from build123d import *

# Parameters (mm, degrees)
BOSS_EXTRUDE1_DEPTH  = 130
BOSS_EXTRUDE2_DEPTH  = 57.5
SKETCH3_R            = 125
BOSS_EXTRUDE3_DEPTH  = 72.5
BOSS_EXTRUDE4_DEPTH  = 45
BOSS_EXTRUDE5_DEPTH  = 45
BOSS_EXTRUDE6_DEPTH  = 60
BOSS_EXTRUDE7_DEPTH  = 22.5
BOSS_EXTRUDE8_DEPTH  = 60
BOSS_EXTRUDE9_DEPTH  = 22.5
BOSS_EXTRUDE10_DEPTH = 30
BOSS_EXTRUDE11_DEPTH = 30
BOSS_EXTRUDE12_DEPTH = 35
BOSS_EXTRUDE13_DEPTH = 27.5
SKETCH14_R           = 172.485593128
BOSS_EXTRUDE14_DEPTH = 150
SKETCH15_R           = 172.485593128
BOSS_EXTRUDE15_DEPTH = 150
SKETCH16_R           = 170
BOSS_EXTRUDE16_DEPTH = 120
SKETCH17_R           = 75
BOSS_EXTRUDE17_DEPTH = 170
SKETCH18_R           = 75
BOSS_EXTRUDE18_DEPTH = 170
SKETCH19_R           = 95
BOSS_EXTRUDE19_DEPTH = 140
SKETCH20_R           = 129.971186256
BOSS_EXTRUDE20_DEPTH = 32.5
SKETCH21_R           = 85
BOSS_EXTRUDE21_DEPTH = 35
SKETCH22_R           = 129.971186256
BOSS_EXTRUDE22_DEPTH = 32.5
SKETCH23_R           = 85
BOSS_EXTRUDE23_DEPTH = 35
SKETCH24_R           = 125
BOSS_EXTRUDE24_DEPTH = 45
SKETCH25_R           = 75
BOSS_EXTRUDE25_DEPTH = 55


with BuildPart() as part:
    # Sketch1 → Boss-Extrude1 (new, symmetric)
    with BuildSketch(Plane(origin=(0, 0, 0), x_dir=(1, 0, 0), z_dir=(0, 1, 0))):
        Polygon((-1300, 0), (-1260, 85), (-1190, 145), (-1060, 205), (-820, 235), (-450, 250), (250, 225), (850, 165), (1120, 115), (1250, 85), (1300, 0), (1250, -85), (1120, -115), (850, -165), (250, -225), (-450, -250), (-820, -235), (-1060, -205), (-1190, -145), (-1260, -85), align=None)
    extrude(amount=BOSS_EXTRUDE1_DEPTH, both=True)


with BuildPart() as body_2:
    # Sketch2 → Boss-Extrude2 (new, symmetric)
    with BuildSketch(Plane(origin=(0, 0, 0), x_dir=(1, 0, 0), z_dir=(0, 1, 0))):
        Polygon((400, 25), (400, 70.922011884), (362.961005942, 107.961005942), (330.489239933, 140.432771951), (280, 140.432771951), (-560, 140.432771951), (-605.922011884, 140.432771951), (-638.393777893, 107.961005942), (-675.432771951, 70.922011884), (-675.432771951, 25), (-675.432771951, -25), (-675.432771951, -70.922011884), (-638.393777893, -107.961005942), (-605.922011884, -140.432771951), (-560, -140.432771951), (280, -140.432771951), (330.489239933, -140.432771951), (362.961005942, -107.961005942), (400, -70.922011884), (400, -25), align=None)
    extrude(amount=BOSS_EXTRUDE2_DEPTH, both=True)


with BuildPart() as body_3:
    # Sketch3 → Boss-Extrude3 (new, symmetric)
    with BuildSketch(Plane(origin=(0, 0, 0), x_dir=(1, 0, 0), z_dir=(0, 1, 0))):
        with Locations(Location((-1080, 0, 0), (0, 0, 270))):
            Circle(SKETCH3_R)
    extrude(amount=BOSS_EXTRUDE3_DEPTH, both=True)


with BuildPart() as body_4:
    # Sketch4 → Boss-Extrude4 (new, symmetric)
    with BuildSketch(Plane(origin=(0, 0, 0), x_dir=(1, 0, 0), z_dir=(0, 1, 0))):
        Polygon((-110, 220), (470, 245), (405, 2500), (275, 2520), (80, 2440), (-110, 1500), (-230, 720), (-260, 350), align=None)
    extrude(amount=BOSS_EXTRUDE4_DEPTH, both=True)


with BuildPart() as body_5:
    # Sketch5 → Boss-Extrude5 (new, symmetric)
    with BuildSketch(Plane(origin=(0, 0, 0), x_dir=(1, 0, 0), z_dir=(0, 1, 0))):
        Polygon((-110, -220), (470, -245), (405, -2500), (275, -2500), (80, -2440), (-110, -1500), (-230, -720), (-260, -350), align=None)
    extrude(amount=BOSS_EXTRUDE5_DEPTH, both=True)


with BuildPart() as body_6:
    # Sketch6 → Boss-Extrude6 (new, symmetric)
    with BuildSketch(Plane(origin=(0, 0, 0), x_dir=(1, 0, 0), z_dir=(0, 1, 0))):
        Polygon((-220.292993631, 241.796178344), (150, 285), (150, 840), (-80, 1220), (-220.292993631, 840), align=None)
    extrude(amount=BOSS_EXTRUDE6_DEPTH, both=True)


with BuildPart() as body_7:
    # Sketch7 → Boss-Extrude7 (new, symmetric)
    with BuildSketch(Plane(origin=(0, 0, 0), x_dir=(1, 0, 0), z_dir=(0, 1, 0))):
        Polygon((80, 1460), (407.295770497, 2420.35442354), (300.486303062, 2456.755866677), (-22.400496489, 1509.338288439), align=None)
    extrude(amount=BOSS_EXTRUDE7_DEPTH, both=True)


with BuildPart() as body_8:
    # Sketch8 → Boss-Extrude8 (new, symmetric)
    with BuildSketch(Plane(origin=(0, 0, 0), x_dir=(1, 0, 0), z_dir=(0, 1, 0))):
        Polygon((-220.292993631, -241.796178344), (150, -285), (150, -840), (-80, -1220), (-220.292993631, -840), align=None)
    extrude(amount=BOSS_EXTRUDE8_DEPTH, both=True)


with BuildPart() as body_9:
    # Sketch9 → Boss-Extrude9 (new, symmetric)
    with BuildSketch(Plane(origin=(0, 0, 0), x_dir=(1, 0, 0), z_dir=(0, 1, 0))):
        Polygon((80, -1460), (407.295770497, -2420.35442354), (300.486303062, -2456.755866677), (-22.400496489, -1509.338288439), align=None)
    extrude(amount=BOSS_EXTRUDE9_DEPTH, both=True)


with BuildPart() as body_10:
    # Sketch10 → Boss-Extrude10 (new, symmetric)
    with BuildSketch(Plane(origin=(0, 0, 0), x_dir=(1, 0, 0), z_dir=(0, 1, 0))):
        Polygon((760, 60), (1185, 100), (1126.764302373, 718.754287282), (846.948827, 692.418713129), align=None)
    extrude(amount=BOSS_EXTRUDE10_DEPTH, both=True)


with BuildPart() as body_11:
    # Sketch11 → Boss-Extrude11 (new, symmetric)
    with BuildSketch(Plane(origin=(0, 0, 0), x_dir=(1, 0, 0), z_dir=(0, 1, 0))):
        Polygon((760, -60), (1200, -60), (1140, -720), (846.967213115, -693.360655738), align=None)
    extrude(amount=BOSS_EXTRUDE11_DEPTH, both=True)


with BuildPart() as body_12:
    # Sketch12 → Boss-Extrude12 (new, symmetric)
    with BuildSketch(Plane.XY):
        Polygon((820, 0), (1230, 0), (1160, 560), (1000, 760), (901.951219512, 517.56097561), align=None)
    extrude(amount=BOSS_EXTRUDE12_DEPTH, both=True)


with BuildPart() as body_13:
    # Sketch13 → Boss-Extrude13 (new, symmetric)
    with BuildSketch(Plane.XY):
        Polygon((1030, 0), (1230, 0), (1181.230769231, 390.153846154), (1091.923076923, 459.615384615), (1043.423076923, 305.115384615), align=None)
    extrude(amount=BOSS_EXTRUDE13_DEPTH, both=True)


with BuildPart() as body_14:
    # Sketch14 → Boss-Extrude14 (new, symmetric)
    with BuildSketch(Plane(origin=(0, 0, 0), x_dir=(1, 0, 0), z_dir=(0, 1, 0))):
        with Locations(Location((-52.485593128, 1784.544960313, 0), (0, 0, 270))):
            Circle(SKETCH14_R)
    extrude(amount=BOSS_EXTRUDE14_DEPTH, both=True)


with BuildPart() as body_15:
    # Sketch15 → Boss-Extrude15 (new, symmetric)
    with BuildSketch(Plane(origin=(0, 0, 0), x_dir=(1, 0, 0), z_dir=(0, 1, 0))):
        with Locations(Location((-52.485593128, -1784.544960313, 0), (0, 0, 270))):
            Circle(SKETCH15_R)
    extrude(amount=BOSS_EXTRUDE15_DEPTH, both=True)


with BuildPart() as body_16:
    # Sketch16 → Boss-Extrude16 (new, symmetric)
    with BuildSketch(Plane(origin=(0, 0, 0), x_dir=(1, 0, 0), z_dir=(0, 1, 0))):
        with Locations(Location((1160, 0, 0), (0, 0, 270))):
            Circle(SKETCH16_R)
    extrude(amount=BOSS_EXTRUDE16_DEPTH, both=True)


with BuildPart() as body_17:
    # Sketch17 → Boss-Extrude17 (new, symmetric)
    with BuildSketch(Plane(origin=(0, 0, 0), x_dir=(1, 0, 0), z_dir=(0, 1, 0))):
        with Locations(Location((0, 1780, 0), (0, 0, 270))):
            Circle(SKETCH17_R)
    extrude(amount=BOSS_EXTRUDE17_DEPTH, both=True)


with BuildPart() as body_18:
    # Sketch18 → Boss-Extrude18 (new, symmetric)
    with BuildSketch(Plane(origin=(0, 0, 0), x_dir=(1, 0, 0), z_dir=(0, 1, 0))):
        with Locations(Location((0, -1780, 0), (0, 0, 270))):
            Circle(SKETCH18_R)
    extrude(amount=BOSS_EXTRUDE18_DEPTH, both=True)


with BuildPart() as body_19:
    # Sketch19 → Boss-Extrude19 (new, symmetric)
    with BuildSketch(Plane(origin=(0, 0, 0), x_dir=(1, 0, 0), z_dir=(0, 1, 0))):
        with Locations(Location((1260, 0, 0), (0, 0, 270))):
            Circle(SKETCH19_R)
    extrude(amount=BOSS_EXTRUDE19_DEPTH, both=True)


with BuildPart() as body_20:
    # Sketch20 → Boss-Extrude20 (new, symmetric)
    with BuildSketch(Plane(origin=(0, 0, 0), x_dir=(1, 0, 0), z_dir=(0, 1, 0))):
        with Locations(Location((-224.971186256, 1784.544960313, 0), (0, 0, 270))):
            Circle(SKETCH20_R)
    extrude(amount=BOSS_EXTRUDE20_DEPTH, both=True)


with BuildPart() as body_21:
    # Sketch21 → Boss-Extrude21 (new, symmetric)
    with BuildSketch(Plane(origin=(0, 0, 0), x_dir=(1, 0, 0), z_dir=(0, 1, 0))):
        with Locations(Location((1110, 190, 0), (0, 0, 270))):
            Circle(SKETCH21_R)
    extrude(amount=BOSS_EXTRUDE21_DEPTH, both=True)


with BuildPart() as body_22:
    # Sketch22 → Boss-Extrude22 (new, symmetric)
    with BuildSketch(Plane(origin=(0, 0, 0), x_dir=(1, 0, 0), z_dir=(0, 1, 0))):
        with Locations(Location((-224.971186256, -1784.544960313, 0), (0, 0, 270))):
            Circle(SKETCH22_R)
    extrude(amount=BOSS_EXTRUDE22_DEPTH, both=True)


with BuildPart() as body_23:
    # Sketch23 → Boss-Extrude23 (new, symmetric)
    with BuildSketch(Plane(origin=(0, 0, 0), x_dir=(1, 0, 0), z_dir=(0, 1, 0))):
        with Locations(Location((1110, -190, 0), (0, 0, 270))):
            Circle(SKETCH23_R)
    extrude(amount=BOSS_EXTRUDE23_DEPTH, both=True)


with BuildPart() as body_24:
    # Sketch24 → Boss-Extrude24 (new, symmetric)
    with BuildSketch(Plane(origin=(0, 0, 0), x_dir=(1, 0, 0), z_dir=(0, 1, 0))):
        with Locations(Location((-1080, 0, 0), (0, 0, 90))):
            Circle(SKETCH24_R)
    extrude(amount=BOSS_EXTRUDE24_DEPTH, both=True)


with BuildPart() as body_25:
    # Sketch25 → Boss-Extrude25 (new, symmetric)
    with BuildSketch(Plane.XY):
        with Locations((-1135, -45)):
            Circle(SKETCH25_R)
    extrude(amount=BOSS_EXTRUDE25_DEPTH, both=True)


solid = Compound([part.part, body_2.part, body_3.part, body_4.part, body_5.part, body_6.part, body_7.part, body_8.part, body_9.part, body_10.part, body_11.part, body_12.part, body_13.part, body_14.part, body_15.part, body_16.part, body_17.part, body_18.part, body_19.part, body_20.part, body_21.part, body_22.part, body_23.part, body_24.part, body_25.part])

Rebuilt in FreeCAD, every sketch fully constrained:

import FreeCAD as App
import Part
import Sketcher
from FreeCAD import Vector
Q = App.Units.Quantity

doc = App.newDocument("Part")
body = doc.addObject("PartDesign::Body", "Body")

sketch1 = doc.addObject("Sketcher::SketchObject", "Sketch")
body.addObject(sketch1)
sketch1.AttachmentSupport = (doc.XZ_Plane, [""])
sketch1.MapMode = "FlatFace"
sketch1.addGeometry(Part.LineSegment(Vector(-1260, -85, 0), Vector(-1300, 0, 0)), False)
sketch1.addGeometry(Part.LineSegment(Vector(-1300, 0, 0), Vector(-1260, 85, 0)), False)
sketch1.addGeometry(Part.LineSegment(Vector(-1260, 85, 0), Vector(-1190, 145, 0)), False)
sketch1.addGeometry(Part.LineSegment(Vector(-1190, 145, 0), Vector(-1060, 205, 0)), False)
sketch1.addGeometry(Part.LineSegment(Vector(-1060, 205, 0), Vector(-820, 235, 0)), False)
sketch1.addGeometry(Part.LineSegment(Vector(-820, 235, 0), Vector(-450, 250, 0)), False)
sketch1.addGeometry(Part.LineSegment(Vector(-450, 250, 0), Vector(250, 225, 0)), False)
sketch1.addGeometry(Part.LineSegment(Vector(250, 225, 0), Vector(850, 165, 0)), False)
sketch1.addGeometry(Part.LineSegment(Vector(850, 165, 0), Vector(1120, 115, 0)), False)
sketch1.addGeometry(Part.LineSegment(Vector(1120, 115, 0), Vector(1250, 85, 0)), False)
sketch1.addGeometry(Part.LineSegment(Vector(1250, 85, 0), Vector(1300, 0, 0)), False)
sketch1.addGeometry(Part.LineSegment(Vector(1300, 0, 0), Vector(1250, -85, 0)), False)
sketch1.addGeometry(Part.LineSegment(Vector(1250, -85, 0), Vector(1120, -115, 0)), False)
sketch1.addGeometry(Part.LineSegment(Vector(1120, -115, 0), Vector(850, -165, 0)), False)
sketch1.addGeometry(Part.LineSegment(Vector(850, -165, 0), Vector(250, -225, 0)), False)
sketch1.addGeometry(Part.LineSegment(Vector(250, -225, 0), Vector(-450, -250, 0)), False)
sketch1.addGeometry(Part.LineSegment(Vector(-450, -250, 0), Vector(-820, -235, 0)), False)
sketch1.addGeometry(Part.LineSegment(Vector(-820, -235, 0), Vector(-1060, -205, 0)), False)
sketch1.addGeometry(Part.LineSegment(Vector(-1060, -205, 0), Vector(-1190, -145, 0)), False)
sketch1.addGeometry(Part.LineSegment(Vector(-1190, -145, 0), Vector(-1260, -85, 0)), False)
sketch1.addConstraint(Sketcher.Constraint("Coincident", 0, 2, 1, 1))
sketch1.addConstraint(Sketcher.Constraint("Coincident", 1, 2, 2, 1))
sketch1.addConstraint(Sketcher.Constraint("Coincident", 2, 2, 3, 1))
sketch1.addConstraint(Sketcher.Constraint("Coincident", 3, 2, 4, 1))
sketch1.addConstraint(Sketcher.Constraint("Coincident", 4, 2, 5, 1))
sketch1.addConstraint(Sketcher.Constraint("Coincident", 5, 2, 6, 1))
sketch1.addConstraint(Sketcher.Constraint("Coincident", 6, 2, 7, 1))
sketch1.addConstraint(Sketcher.Constraint("Coincident", 7, 2, 8, 1))
sketch1.addConstraint(Sketcher.Constraint("Coincident", 8, 2, 9, 1))
sketch1.addConstraint(Sketcher.Constraint("Coincident", 9, 2, 10, 1))
sketch1.addConstraint(Sketcher.Constraint("Coincident", 10, 2, 11, 1))
sketch1.addConstraint(Sketcher.Constraint("Coincident", 11, 2, 12, 1))
sketch1.addConstraint(Sketcher.Constraint("Coincident", 12, 2, 13, 1))
sketch1.addConstraint(Sketcher.Constraint("Coincident", 13, 2, 14, 1))
sketch1.addConstraint(Sketcher.Constraint("Coincident", 14, 2, 15, 1))
sketch1.addConstraint(Sketcher.Constraint("Coincident", 15, 2, 16, 1))
sketch1.addConstraint(Sketcher.Constraint("Coincident", 16, 2, 17, 1))
sketch1.addConstraint(Sketcher.Constraint("Coincident", 17, 2, 18, 1))
sketch1.addConstraint(Sketcher.Constraint("Coincident", 18, 2, 19, 1))
sketch1.addConstraint(Sketcher.Constraint("Coincident", 19, 2, 0, 1))
sketch1.addConstraint(Sketcher.Constraint("Symmetric", 0, 2, 10, 2, -1, 1))
sketch1.addConstraint(Sketcher.Constraint("Symmetric", 9, 2, 11, 2, -1))
sketch1.addConstraint(Sketcher.Constraint("Symmetric", 8, 2, 12, 2, -1))
sketch1.addConstraint(Sketcher.Constraint("Symmetric", 7, 2, 13, 2, -1))
sketch1.addConstraint(Sketcher.Constraint("Symmetric", 6, 2, 14, 2, -1))
sketch1.addConstraint(Sketcher.Constraint("Symmetric", 5, 2, 15, 2, -1))
sketch1.addConstraint(Sketcher.Constraint("Symmetric", 4, 2, 16, 2, -1))
sketch1.addConstraint(Sketcher.Constraint("Symmetric", 3, 2, 17, 2, -1))
sketch1.addConstraint(Sketcher.Constraint("Symmetric", 2, 2, 18, 2, -1))
sketch1.addConstraint(Sketcher.Constraint("Symmetric", 1, 2, 19, 2, -1))
sketch1.addConstraint(Sketcher.Constraint("PointOnObject", 0, 2, -1))
sketch1.addConstraint(Sketcher.Constraint("Horizontal", 1, 2, 9, 2))
sketch1.addConstraint(Sketcher.Constraint("DistanceX", 0, 2, -1, 1, Q("1300 mm")))
sketch1.addConstraint(Sketcher.Constraint("DistanceX", 1, 2, -1, 1, Q("1260 mm")))
sketch1.addConstraint(Sketcher.Constraint("DistanceY", -1, 1, 1, 2, Q("85 mm")))
sketch1.addConstraint(Sketcher.Constraint("DistanceX", 2, 2, -1, 1, Q("1190 mm")))
sketch1.addConstraint(Sketcher.Constraint("DistanceY", -1, 1, 2, 2, Q("145 mm")))
sketch1.addConstraint(Sketcher.Constraint("DistanceX", 3, 2, -1, 1, Q("1060 mm")))
sketch1.addConstraint(Sketcher.Constraint("DistanceY", -1, 1, 3, 2, Q("205 mm")))
sketch1.addConstraint(Sketcher.Constraint("DistanceX", 4, 2, -1, 1, Q("820 mm")))
sketch1.addConstraint(Sketcher.Constraint("DistanceY", -1, 1, 4, 2, Q("235 mm")))
sketch1.addConstraint(Sketcher.Constraint("DistanceX", 5, 2, -1, 1, Q("450 mm")))
sketch1.addConstraint(Sketcher.Constraint("DistanceY", -1, 1, 5, 2, Q("250 mm")))
sketch1.addConstraint(Sketcher.Constraint("DistanceX", -1, 1, 6, 2, Q("250 mm")))
sketch1.addConstraint(Sketcher.Constraint("DistanceY", -1, 1, 6, 2, Q("225 mm")))
sketch1.addConstraint(Sketcher.Constraint("DistanceX", -1, 1, 7, 2, Q("850 mm")))
sketch1.addConstraint(Sketcher.Constraint("DistanceY", -1, 1, 7, 2, Q("165 mm")))
sketch1.addConstraint(Sketcher.Constraint("DistanceX", -1, 1, 8, 2, Q("1120 mm")))
sketch1.addConstraint(Sketcher.Constraint("DistanceY", -1, 1, 8, 2, Q("115 mm")))
sketch1.addConstraint(Sketcher.Constraint("DistanceX", -1, 1, 9, 2, Q("1250 mm")))
pad1 = doc.addObject("PartDesign::Pad", "Pad")
body.addObject(pad1)
pad1.Profile = sketch1
pad1.Length = 260
pad1.Midplane = True
body2 = doc.addObject("PartDesign::Body", "Body001")

sketch2 = doc.addObject("Sketcher::SketchObject", "Sketch001")
body2.addObject(sketch2)
sketch2.AttachmentSupport = (doc.getObject("XZ_Plane001"), [""])
sketch2.MapMode = "FlatFace"
sketch2.addGeometry(Part.LineSegment(Vector(400, -71, 0), Vector(330, -140, 0)), False)
sketch2.addGeometry(Part.LineSegment(Vector(330, -140, 0), Vector(-606, -140, 0)), False)
sketch2.addGeometry(Part.LineSegment(Vector(-606, -140, 0), Vector(-675, -71, 0)), False)
sketch2.addGeometry(Part.LineSegment(Vector(-675, -71, 0), Vector(-675, 71, 0)), False)
sketch2.addGeometry(Part.LineSegment(Vector(-675, 71, 0), Vector(-606, 140, 0)), False)
sketch2.addGeometry(Part.LineSegment(Vector(-606, 140, 0), Vector(330, 140, 0)), False)
sketch2.addGeometry(Part.LineSegment(Vector(330, 140, 0), Vector(400, 71, 0)), False)
sketch2.addGeometry(Part.LineSegment(Vector(400, 71, 0), Vector(400, -71, 0)), False)
sketch2.addConstraint(Sketcher.Constraint("Coincident", 0, 2, 1, 1))
sketch2.addConstraint(Sketcher.Constraint("Coincident", 1, 2, 2, 1))
sketch2.addConstraint(Sketcher.Constraint("Coincident", 2, 2, 3, 1))
sketch2.addConstraint(Sketcher.Constraint("Coincident", 3, 2, 4, 1))
sketch2.addConstraint(Sketcher.Constraint("Coincident", 4, 2, 5, 1))
sketch2.addConstraint(Sketcher.Constraint("Coincident", 5, 2, 6, 1))
sketch2.addConstraint(Sketcher.Constraint("Coincident", 6, 2, 7, 1))
sketch2.addConstraint(Sketcher.Constraint("Coincident", 7, 2, 0, 1))
sketch2.addConstraint(Sketcher.Constraint("Horizontal", 1))
sketch2.addConstraint(Sketcher.Constraint("Vertical", 3))
sketch2.addConstraint(Sketcher.Constraint("Horizontal", 5))
sketch2.addConstraint(Sketcher.Constraint("Vertical", 7))
sketch2.addConstraint(Sketcher.Constraint("Symmetric", 1, 2, 4, 2, -1))
sketch2.addConstraint(Sketcher.Constraint("Perpendicular", 0, 2))
sketch2.addConstraint(Sketcher.Constraint("Perpendicular", 2, 4))
sketch2.addConstraint(Sketcher.Constraint("Perpendicular", 4, 6))
sketch2.addConstraint(Sketcher.Constraint("Horizontal", 3, 2, 6, 2))
sketch2.addConstraint(Sketcher.Constraint("Horizontal", 2, 2, 7, 2))
sketch2.addConstraint(Sketcher.Constraint("Vertical", 0, 2, 5, 2))
sketch2.addConstraint(Sketcher.Constraint("DistanceX", -1, 1, 6, 2, Q("400 mm")))
sketch2.addConstraint(Sketcher.Constraint("DistanceX", 1, 2, 1, 1, Q("936.411252 mm")))
sketch2.addConstraint(Sketcher.Constraint("Distance", 0, Q("98.30306 mm")))
sketch2.addConstraint(Sketcher.Constraint("DistanceY", 3, 1, 3, 2, Q("141.844024 mm")))
pad2 = doc.addObject("PartDesign::Pad", "Pad001")
body2.addObject(pad2)
pad2.Profile = sketch2
pad2.Length = 115
pad2.Midplane = True
body3 = doc.addObject("PartDesign::Body", "Body002")

sketch3 = doc.addObject("Sketcher::SketchObject", "Sketch002")
body3.addObject(sketch3)
sketch3.AttachmentSupport = (doc.getObject("XZ_Plane002"), [""])
sketch3.MapMode = "FlatFace"
sketch3.addGeometry(Part.Circle(Vector(-1080, 0, 0), Vector(0, 0, 1), 125), False)
sketch3.addConstraint(Sketcher.Constraint("PointOnObject", 0, 3, -1))
sketch3.addConstraint(Sketcher.Constraint("Diameter", 0, Q("250 mm")))
sketch3.addConstraint(Sketcher.Constraint("DistanceX", 0, 3, -1, 1, Q("1080 mm")))
pad3 = doc.addObject("PartDesign::Pad", "Pad002")
body3.addObject(pad3)
pad3.Profile = sketch3
pad3.Length = 145
pad3.Midplane = True
body4 = doc.addObject("PartDesign::Body", "Body003")

sketch4 = doc.addObject("Sketcher::SketchObject", "Sketch003")
body4.addObject(sketch4)
sketch4.AttachmentSupport = (doc.getObject("XZ_Plane003"), [""])
sketch4.MapMode = "FlatFace"
sketch4.addGeometry(Part.LineSegment(Vector(-110, -220, 0), Vector(470, -245, 0)), False)
sketch4.addGeometry(Part.LineSegment(Vector(470, -245, 0), Vector(405, -2500, 0)), False)
sketch4.addGeometry(Part.LineSegment(Vector(405, -2500, 0), Vector(275, -2520, 0)), False)
sketch4.addGeometry(Part.LineSegment(Vector(275, -2520, 0), Vector(80, -2440, 0)), False)
sketch4.addGeometry(Part.LineSegment(Vector(80, -2440, 0), Vector(-110, -1500, 0)), False)
sketch4.addGeometry(Part.LineSegment(Vector(-110, -1500, 0), Vector(-230, -720, 0)), False)
sketch4.addGeometry(Part.LineSegment(Vector(-230, -720, 0), Vector(-260, -350, 0)), False)
sketch4.addGeometry(Part.LineSegment(Vector(-260, -350, 0), Vector(-110, -220, 0)), False)
sketch4.addConstraint(Sketcher.Constraint("Coincident", 0, 2, 1, 1))
sketch4.addConstraint(Sketcher.Constraint("Coincident", 1, 2, 2, 1))
sketch4.addConstraint(Sketcher.Constraint("Coincident", 2, 2, 3, 1))
sketch4.addConstraint(Sketcher.Constraint("Coincident", 3, 2, 4, 1))
sketch4.addConstraint(Sketcher.Constraint("Coincident", 4, 2, 5, 1))
sketch4.addConstraint(Sketcher.Constraint("Coincident", 5, 2, 6, 1))
sketch4.addConstraint(Sketcher.Constraint("Coincident", 6, 2, 7, 1))
sketch4.addConstraint(Sketcher.Constraint("Coincident", 7, 2, 0, 1))
sketch4.addConstraint(Sketcher.Constraint("Perpendicular", 2, 5))
sketch4.addConstraint(Sketcher.Constraint("Vertical", 4, 2, 7, 2))
sketch4.addConstraint(Sketcher.Constraint("DistanceX", -1, 1, 0, 2, Q("470 mm")))
sketch4.addConstraint(Sketcher.Constraint("DistanceY", 0, 2, -1, 1, Q("245 mm")))
sketch4.addConstraint(Sketcher.Constraint("DistanceX", -1, 1, 1, 2, Q("405 mm")))
sketch4.addConstraint(Sketcher.Constraint("DistanceY", 1, 2, -1, 1, Q("2500 mm")))
sketch4.addConstraint(Sketcher.Constraint("DistanceX", -1, 1, 2, 2, Q("275 mm")))
sketch4.addConstraint(Sketcher.Constraint("DistanceY", 2, 2, -1, 1, Q("2520 mm")))
sketch4.addConstraint(Sketcher.Constraint("DistanceX", -1, 1, 3, 2, Q("80 mm")))
sketch4.addConstraint(Sketcher.Constraint("DistanceY", 3, 2, -1, 1, Q("2440 mm")))
sketch4.addConstraint(Sketcher.Constraint("DistanceX", 4, 2, -1, 1, Q("110 mm")))
sketch4.addConstraint(Sketcher.Constraint("DistanceY", 4, 2, -1, 1, Q("1500 mm")))
sketch4.addConstraint(Sketcher.Constraint("DistanceX", 5, 2, -1, 1, Q("230 mm")))
sketch4.addConstraint(Sketcher.Constraint("DistanceX", 6, 2, -1, 1, Q("260 mm")))
sketch4.addConstraint(Sketcher.Constraint("DistanceY", 6, 2, -1, 1, Q("350 mm")))
sketch4.addConstraint(Sketcher.Constraint("DistanceY", 7, 2, -1, 1, Q("220 mm")))
pad4 = doc.addObject("PartDesign::Pad", "Pad003")
body4.addObject(pad4)
pad4.Profile = sketch4
pad4.Length = 90
pad4.Midplane = True
body5 = doc.addObject("PartDesign::Body", "Body004")

sketch5 = doc.addObject("Sketcher::SketchObject", "Sketch004")
body5.addObject(sketch5)
sketch5.AttachmentSupport = (doc.getObject("XZ_Plane004"), [""])
sketch5.MapMode = "FlatFace"
sketch5.addGeometry(Part.LineSegment(Vector(470, 245, 0), Vector(-110, 220, 0)), False)
sketch5.addGeometry(Part.LineSegment(Vector(-110, 220, 0), Vector(-260, 350, 0)), False)
sketch5.addGeometry(Part.LineSegment(Vector(-260, 350, 0), Vector(-230, 720, 0)), False)
sketch5.addGeometry(Part.LineSegment(Vector(-230, 720, 0), Vector(-110, 1500, 0)), False)
sketch5.addGeometry(Part.LineSegment(Vector(-110, 1500, 0), Vector(80, 2440, 0)), False)
sketch5.addGeometry(Part.LineSegment(Vector(80, 2440, 0), Vector(275, 2500, 0)), False)
sketch5.addGeometry(Part.LineSegment(Vector(275, 2500, 0), Vector(405, 2500, 0)), False)
sketch5.addGeometry(Part.LineSegment(Vector(405, 2500, 0), Vector(470, 245, 0)), False)
sketch5.addConstraint(Sketcher.Constraint("Coincident", 0, 2, 1, 1))
sketch5.addConstraint(Sketcher.Constraint("Coincident", 1, 2, 2, 1))
sketch5.addConstraint(Sketcher.Constraint("Coincident", 2, 2, 3, 1))
sketch5.addConstraint(Sketcher.Constraint("Coincident", 3, 2, 4, 1))
sketch5.addConstraint(Sketcher.Constraint("Coincident", 4, 2, 5, 1))
sketch5.addConstraint(Sketcher.Constraint("Coincident", 5, 2, 6, 1))
sketch5.addConstraint(Sketcher.Constraint("Coincident", 6, 2, 7, 1))
sketch5.addConstraint(Sketcher.Constraint("Coincident", 7, 2, 0, 1))
sketch5.addConstraint(Sketcher.Constraint("Horizontal", 6))
sketch5.addConstraint(Sketcher.Constraint("Vertical", 0, 2, 3, 2))
sketch5.addConstraint(Sketcher.Constraint("DistanceX", 6, 1, 6, 2, Q("130 mm")))
sketch5.addConstraint(Sketcher.Constraint("DistanceX", 0, 2, -1, 1, Q("110 mm")))
sketch5.addConstraint(Sketcher.Constraint("DistanceY", -1, 1, 0, 2, Q("220 mm")))
sketch5.addConstraint(Sketcher.Constraint("DistanceX", 1, 2, -1, 1, Q("260 mm")))
sketch5.addConstraint(Sketcher.Constraint("DistanceY", -1, 1, 1, 2, Q("350 mm")))
sketch5.addConstraint(Sketcher.Constraint("DistanceX", 2, 2, -1, 1, Q("230 mm")))
sketch5.addConstraint(Sketcher.Constraint("DistanceY", -1, 1, 2, 2, Q("720 mm")))
sketch5.addConstraint(Sketcher.Constraint("DistanceY", -1, 1, 3, 2, Q("1500 mm")))
sketch5.addConstraint(Sketcher.Constraint("DistanceX", -1, 1, 4, 2, Q("80 mm")))
sketch5.addConstraint(Sketcher.Constraint("DistanceY", -1, 1, 4, 2, Q("2440 mm")))
sketch5.addConstraint(Sketcher.Constraint("DistanceX", -1, 1, 5, 2, Q("275 mm")))
sketch5.addConstraint(Sketcher.Constraint("DistanceY", -1, 1, 5, 2, Q("2500 mm")))
sketch5.addConstraint(Sketcher.Constraint("DistanceX", -1, 1, 7, 2, Q("470 mm")))
sketch5.addConstraint(Sketcher.Constraint("DistanceY", -1, 1, 7, 2, Q("245 mm")))
pad5 = doc.addObject("PartDesign::Pad", "Pad004")
body5.addObject(pad5)
pad5.Profile = sketch5
pad5.Length = 90
pad5.Midplane = True
body6 = doc.addObject("PartDesign::Body", "Body005")

sketch6 = doc.addObject("Sketcher::SketchObject", "Sketch005")
body6.addObject(sketch6)
sketch6.AttachmentSupport = (doc.getObject("XZ_Plane005"), [""])
sketch6.MapMode = "FlatFace"
sketch6.addGeometry(Part.LineSegment(Vector(-220, -242, 0), Vector(150, -285, 0)), False)
sketch6.addGeometry(Part.LineSegment(Vector(150, -285, 0), Vector(150, -840, 0)), False)
sketch6.addGeometry(Part.LineSegment(Vector(150, -840, 0), Vector(-80, -1220, 0)), False)
sketch6.addGeometry(Part.LineSegment(Vector(-80, -1220, 0), Vector(-220, -840, 0)), False)
sketch6.addGeometry(Part.LineSegment(Vector(-220, -840, 0), Vector(-220, -242, 0)), False)
sketch6.addConstraint(Sketcher.Constraint("Coincident", 0, 2, 1, 1))
sketch6.addConstraint(Sketcher.Constraint("Coincident", 1, 2, 2, 1))
sketch6.addConstraint(Sketcher.Constraint("Coincident", 2, 2, 3, 1))
sketch6.addConstraint(Sketcher.Constraint("Coincident", 3, 2, 4, 1))
sketch6.addConstraint(Sketcher.Constraint("Coincident", 4, 2, 0, 1))
sketch6.addConstraint(Sketcher.Constraint("Vertical", 1))
sketch6.addConstraint(Sketcher.Constraint("Vertical", 4))
sketch6.addConstraint(Sketcher.Constraint("Horizontal", 1, 2, 3, 2))
sketch6.addConstraint(Sketcher.Constraint("DistanceY", 1, 2, 1, 1, Q("555 mm")))
sketch6.addConstraint(Sketcher.Constraint("DistanceX", -1, 1, 0, 2, Q("150 mm")))
sketch6.addConstraint(Sketcher.Constraint("DistanceY", 0, 2, -1, 1, Q("285 mm")))
sketch6.addConstraint(Sketcher.Constraint("DistanceX", 2, 2, -1, 1, Q("80 mm")))
sketch6.addConstraint(Sketcher.Constraint("DistanceY", 2, 2, -1, 1, Q("1220 mm")))
sketch6.addConstraint(Sketcher.Constraint("DistanceY", 4, 1, 4, 2, Q("598.203822 mm")))
sketch6.addConstraint(Sketcher.Constraint("Distance", 0, Q("372.80487 mm")))
pad6 = doc.addObject("PartDesign::Pad", "Pad005")
body6.addObject(pad6)
pad6.Profile = sketch6
pad6.Length = 120
pad6.Midplane = True
body7 = doc.addObject("PartDesign::Body", "Body006")

sketch7 = doc.addObject("Sketcher::SketchObject", "Sketch006")
body7.addObject(sketch7)
sketch7.AttachmentSupport = (doc.getObject("XZ_Plane006"), [""])
sketch7.MapMode = "FlatFace"
sketch7.addGeometry(Part.LineSegment(Vector(80, -1460, 0), Vector(407, -2420, 0)), False)
sketch7.addGeometry(Part.LineSegment(Vector(407, -2420, 0), Vector(300, -2457, 0)), False)
sketch7.addGeometry(Part.LineSegment(Vector(300, -2457, 0), Vector(-22, -1509, 0)), False)
sketch7.addGeometry(Part.LineSegment(Vector(-22, -1509, 0), Vector(80, -1460, 0)), False)
sketch7.addConstraint(Sketcher.Constraint("Coincident", 0, 2, 1, 1))
sketch7.addConstraint(Sketcher.Constraint("Coincident", 1, 2, 2, 1))
sketch7.addConstraint(Sketcher.Constraint("Coincident", 2, 2, 3, 1))
sketch7.addConstraint(Sketcher.Constraint("Coincident", 3, 2, 0, 1))
sketch7.addConstraint(Sketcher.Constraint("Perpendicular", 0, 1))
sketch7.addConstraint(Sketcher.Constraint("Perpendicular", 1, 2))
sketch7.addConstraint(Sketcher.Constraint("DistanceX", -1, 1, 3, 2, Q("80 mm")))
sketch7.addConstraint(Sketcher.Constraint("DistanceY", 3, 2, -1, 1, Q("1460 mm")))
sketch7.addConstraint(Sketcher.Constraint("DistanceX", 2, 2, 1, 2, Q("322.8868 mm")))
sketch7.addConstraint(Sketcher.Constraint("DistanceX", -1, 1, 0, 2, Q("407.29577 mm")))
sketch7.addConstraint(Sketcher.Constraint("DistanceY", 2, 2, -1, 1, Q("1509.338288 mm")))
sketch7.addConstraint(Sketcher.Constraint("DistanceY", 1, 2, 2, 2, Q("947.417578 mm")))
pad7 = doc.addObject("PartDesign::Pad", "Pad006")
body7.addObject(pad7)
pad7.Profile = sketch7
pad7.Length = 45
pad7.Midplane = True
body8 = doc.addObject("PartDesign::Body", "Body007")

sketch8 = doc.addObject("Sketcher::SketchObject", "Sketch007")
body8.addObject(sketch8)
sketch8.AttachmentSupport = (doc.getObject("XZ_Plane007"), [""])
sketch8.MapMode = "FlatFace"
sketch8.addGeometry(Part.LineSegment(Vector(150, 285, 0), Vector(-220, 242, 0)), False)
sketch8.addGeometry(Part.LineSegment(Vector(-220, 242, 0), Vector(-220, 840, 0)), False)
sketch8.addGeometry(Part.LineSegment(Vector(-220, 840, 0), Vector(-80, 1220, 0)), False)
sketch8.addGeometry(Part.LineSegment(Vector(-80, 1220, 0), Vector(150, 840, 0)), False)
sketch8.addGeometry(Part.LineSegment(Vector(150, 840, 0), Vector(150, 285, 0)), False)
sketch8.addConstraint(Sketcher.Constraint("Coincident", 0, 2, 1, 1))
sketch8.addConstraint(Sketcher.Constraint("Coincident", 1, 2, 2, 1))
sketch8.addConstraint(Sketcher.Constraint("Coincident", 2, 2, 3, 1))
sketch8.addConstraint(Sketcher.Constraint("Coincident", 3, 2, 4, 1))
sketch8.addConstraint(Sketcher.Constraint("Coincident", 4, 2, 0, 1))
sketch8.addConstraint(Sketcher.Constraint("Vertical", 1))
sketch8.addConstraint(Sketcher.Constraint("Vertical", 4))
sketch8.addConstraint(Sketcher.Constraint("Horizontal", 1, 2, 3, 2))
sketch8.addConstraint(Sketcher.Constraint("DistanceY", 4, 2, 4, 1, Q("555 mm")))
sketch8.addConstraint(Sketcher.Constraint("DistanceY", -1, 1, 1, 2, Q("840 mm")))
sketch8.addConstraint(Sketcher.Constraint("DistanceX", 2, 2, -1, 1, Q("80 mm")))
sketch8.addConstraint(Sketcher.Constraint("DistanceY", -1, 1, 2, 2, Q("1220 mm")))
sketch8.addConstraint(Sketcher.Constraint("DistanceX", -1, 1, 3, 2, Q("150 mm")))
sketch8.addConstraint(Sketcher.Constraint("DistanceY", 1, 1, 1, 2, Q("598.203822 mm")))
sketch8.addConstraint(Sketcher.Constraint("Distance", 0, Q("372.80487 mm")))
pad8 = doc.addObject("PartDesign::Pad", "Pad007")
body8.addObject(pad8)
pad8.Profile = sketch8
pad8.Length = 120
pad8.Midplane = True
body9 = doc.addObject("PartDesign::Body", "Body008")

sketch9 = doc.addObject("Sketcher::SketchObject", "Sketch008")
body9.addObject(sketch9)
sketch9.AttachmentSupport = (doc.getObject("XZ_Plane008"), [""])
sketch9.MapMode = "FlatFace"
sketch9.addGeometry(Part.LineSegment(Vector(407, 2420, 0), Vector(80, 1460, 0)), False)
sketch9.addGeometry(Part.LineSegment(Vector(80, 1460, 0), Vector(-22, 1509, 0)), False)
sketch9.addGeometry(Part.LineSegment(Vector(-22, 1509, 0), Vector(300, 2457, 0)), False)
sketch9.addGeometry(Part.LineSegment(Vector(300, 2457, 0), Vector(407, 2420, 0)), False)
sketch9.addConstraint(Sketcher.Constraint("Coincident", 0, 2, 1, 1))
sketch9.addConstraint(Sketcher.Constraint("Coincident", 1, 2, 2, 1))
sketch9.addConstraint(Sketcher.Constraint("Coincident", 2, 2, 3, 1))
sketch9.addConstraint(Sketcher.Constraint("Coincident", 3, 2, 0, 1))
sketch9.addConstraint(Sketcher.Constraint("Parallel", 0, 2))
sketch9.addConstraint(Sketcher.Constraint("Perpendicular", 2, 3))
sketch9.addConstraint(Sketcher.Constraint("DistanceX", -1, 1, 0, 2, Q("80 mm")))
sketch9.addConstraint(Sketcher.Constraint("DistanceY", -1, 1, 0, 2, Q("1460 mm")))
sketch9.addConstraint(Sketcher.Constraint("DistanceX", 1, 2, 2, 2, Q("322.8868 mm")))
sketch9.addConstraint(Sketcher.Constraint("DistanceY", -1, 1, 1, 2, Q("1509.338288 mm")))
sketch9.addConstraint(Sketcher.Constraint("DistanceX", -1, 1, 3, 2, Q("407.29577 mm")))
sketch9.addConstraint(Sketcher.Constraint("DistanceY", 1, 2, 2, 2, Q("947.417578 mm")))
pad9 = doc.addObject("PartDesign::Pad", "Pad008")
body9.addObject(pad9)
pad9.Profile = sketch9
pad9.Length = 45
pad9.Midplane = True
body10 = doc.addObject("PartDesign::Body", "Body009")

sketch10 = doc.addObject("Sketcher::SketchObject", "Sketch009")
body10.addObject(sketch10)
sketch10.AttachmentSupport = (doc.getObject("XZ_Plane009"), [""])
sketch10.MapMode = "FlatFace"
sketch10.addGeometry(Part.LineSegment(Vector(760, -60, 0), Vector(1185, -100, 0)), False)
sketch10.addGeometry(Part.LineSegment(Vector(1185, -100, 0), Vector(1127, -719, 0)), False)
sketch10.addGeometry(Part.LineSegment(Vector(1127, -719, 0), Vector(847, -692, 0)), False)
sketch10.addGeometry(Part.LineSegment(Vector(847, -692, 0), Vector(760, -60, 0)), False)
sketch10.addConstraint(Sketcher.Constraint("Coincident", 0, 2, 1, 1))
sketch10.addConstraint(Sketcher.Constraint("Coincident", 1, 2, 2, 1))
sketch10.addConstraint(Sketcher.Constraint("Coincident", 2, 2, 3, 1))
sketch10.addConstraint(Sketcher.Constraint("Coincident", 3, 2, 0, 1))
sketch10.addConstraint(Sketcher.Constraint("Perpendicular", 0, 1))
sketch10.addConstraint(Sketcher.Constraint("Perpendicular", 1, 2))
sketch10.addConstraint(Sketcher.Constraint("DistanceX", -1, 1, 0, 2, Q("1185 mm")))
sketch10.addConstraint(Sketcher.Constraint("DistanceY", 0, 2, -1, 1, Q("100 mm")))
sketch10.addConstraint(Sketcher.Constraint("DistanceX", -1, 1, 3, 2, Q("760 mm")))
sketch10.addConstraint(Sketcher.Constraint("DistanceY", 3, 2, -1, 1, Q("60 mm")))
sketch10.addConstraint(Sketcher.Constraint("Distance", 1, Q("621.488748 mm")))
sketch10.addConstraint(Sketcher.Constraint("Distance", 3, Q("638.367862 mm")))
pad10 = doc.addObject("PartDesign::Pad", "Pad009")
body10.addObject(pad10)
pad10.Profile = sketch10
pad10.Length = 60
pad10.Midplane = True
body11 = doc.addObject("PartDesign::Body", "Body010")

sketch11 = doc.addObject("Sketcher::SketchObject", "Sketch010")
body11.addObject(sketch11)
sketch11.AttachmentSupport = (doc.getObject("XZ_Plane010"), [""])
sketch11.MapMode = "FlatFace"
sketch11.addGeometry(Part.LineSegment(Vector(1200, 60, 0), Vector(760, 60, 0)), False)
sketch11.addGeometry(Part.LineSegment(Vector(760, 60, 0), Vector(847, 693, 0)), False)
sketch11.addGeometry(Part.LineSegment(Vector(847, 693, 0), Vector(1140, 720, 0)), False)
sketch11.addGeometry(Part.LineSegment(Vector(1140, 720, 0), Vector(1200, 60, 0)), False)
sketch11.addConstraint(Sketcher.Constraint("Coincident", 0, 2, 1, 1))
sketch11.addConstraint(Sketcher.Constraint("Coincident", 1, 2, 2, 1))
sketch11.addConstraint(Sketcher.Constraint("Coincident", 2, 2, 3, 1))
sketch11.addConstraint(Sketcher.Constraint("Coincident", 3, 2, 0, 1))
sketch11.addConstraint(Sketcher.Constraint("Horizontal", 0))
sketch11.addConstraint(Sketcher.Constraint("Perpendicular", 2, 3))
sketch11.addConstraint(Sketcher.Constraint("DistanceX", 0, 2, 0, 1, Q("440 mm")))
sketch11.addConstraint(Sketcher.Constraint("DistanceX", -1, 1, 0, 2, Q("760 mm")))
sketch11.addConstraint(Sketcher.Constraint("DistanceY", -1, 1, 0, 2, Q("60 mm")))
sketch11.addConstraint(Sketcher.Constraint("DistanceX", -1, 1, 2, 2, Q("1140 mm")))
sketch11.addConstraint(Sketcher.Constraint("DistanceY", -1, 1, 2, 2, Q("720 mm")))
sketch11.addConstraint(Sketcher.Constraint("Distance", 1, Q("639.30354 mm")))
pad11 = doc.addObject("PartDesign::Pad", "Pad010")
body11.addObject(pad11)
pad11.Profile = sketch11
pad11.Length = 60
pad11.Midplane = True
body12 = doc.addObject("PartDesign::Body", "Body011")

sketch12 = doc.addObject("Sketcher::SketchObject", "Sketch011")
body12.addObject(sketch12)
sketch12.AttachmentSupport = (doc.getObject("XY_Plane011"), [""])
sketch12.MapMode = "FlatFace"
sketch12.addGeometry(Part.LineSegment(Vector(820, 0, 0), Vector(1230, 0, 0)), False)
sketch12.addGeometry(Part.LineSegment(Vector(1230, 0, 0), Vector(1160, 560, 0)), False)
sketch12.addGeometry(Part.LineSegment(Vector(1160, 560, 0), Vector(1000, 760, 0)), False)
sketch12.addGeometry(Part.LineSegment(Vector(1000, 760, 0), Vector(902, 518, 0)), False)
sketch12.addGeometry(Part.LineSegment(Vector(902, 518, 0), Vector(820, 0, 0)), False)
sketch12.addConstraint(Sketcher.Constraint("Coincident", 0, 2, 1, 1))
sketch12.addConstraint(Sketcher.Constraint("Coincident", 1, 2, 2, 1))
sketch12.addConstraint(Sketcher.Constraint("Coincident", 2, 2, 3, 1))
sketch12.addConstraint(Sketcher.Constraint("Coincident", 3, 2, 4, 1))
sketch12.addConstraint(Sketcher.Constraint("Coincident", 4, 2, 0, 1))
sketch12.addConstraint(Sketcher.Constraint("Horizontal", 0))
sketch12.addConstraint(Sketcher.Constraint("PointOnObject", 0, 2, -1))
sketch12.addConstraint(Sketcher.Constraint("DistanceX", 0, 1, 0, 2, Q("410 mm")))
sketch12.addConstraint(Sketcher.Constraint("DistanceX", -1, 1, 0, 2, Q("1230 mm")))
sketch12.addConstraint(Sketcher.Constraint("DistanceX", -1, 1, 1, 2, Q("1160 mm")))
sketch12.addConstraint(Sketcher.Constraint("DistanceY", -1, 1, 1, 2, Q("560 mm")))
sketch12.addConstraint(Sketcher.Constraint("DistanceX", -1, 1, 2, 2, Q("1000 mm")))
sketch12.addConstraint(Sketcher.Constraint("DistanceY", -1, 1, 2, 2, Q("760 mm")))
sketch12.addConstraint(Sketcher.Constraint("DistanceX", -1, 1, 3, 2, Q("901.95122 mm")))
sketch12.addConstraint(Sketcher.Constraint("Distance", 3, Q("261.515284 mm")))
pad12 = doc.addObject("PartDesign::Pad", "Pad011")
body12.addObject(pad12)
pad12.Profile = sketch12
pad12.Length = 70
pad12.Midplane = True
body13 = doc.addObject("PartDesign::Body", "Body012")

sketch13 = doc.addObject("Sketcher::SketchObject", "Sketch012")
body13.addObject(sketch13)
sketch13.AttachmentSupport = (doc.getObject("XY_Plane012"), [""])
sketch13.MapMode = "FlatFace"
sketch13.addGeometry(Part.LineSegment(Vector(1030, 0, 0), Vector(1230, 0, 0)), False)
sketch13.addGeometry(Part.LineSegment(Vector(1230, 0, 0), Vector(1181, 390, 0)), False)
sketch13.addGeometry(Part.LineSegment(Vector(1181, 390, 0), Vector(1092, 460, 0)), False)
sketch13.addGeometry(Part.LineSegment(Vector(1092, 460, 0), Vector(1043, 305, 0)), False)
sketch13.addGeometry(Part.LineSegment(Vector(1043, 305, 0), Vector(1030, 0, 0)), False)
sketch13.addConstraint(Sketcher.Constraint("Coincident", 0, 2, 1, 1))
sketch13.addConstraint(Sketcher.Constraint("Coincident", 1, 2, 2, 1))
sketch13.addConstraint(Sketcher.Constraint("Coincident", 2, 2, 3, 1))
sketch13.addConstraint(Sketcher.Constraint("Coincident", 3, 2, 4, 1))
sketch13.addConstraint(Sketcher.Constraint("Coincident", 4, 2, 0, 1))
sketch13.addConstraint(Sketcher.Constraint("Horizontal", 0))
sketch13.addConstraint(Sketcher.Constraint("PointOnObject", 0, 2, -1))
sketch13.addConstraint(Sketcher.Constraint("DistanceX", 0, 1, 0, 2, Q("200 mm")))
sketch13.addConstraint(Sketcher.Constraint("DistanceX", -1, 1, 0, 2, Q("1230 mm")))
sketch13.addConstraint(Sketcher.Constraint("DistanceX", 3, 2, 2, 2, Q("48.5 mm")))
sketch13.addConstraint(Sketcher.Constraint("DistanceY", 3, 2, 2, 2, Q("154.5 mm")))
sketch13.addConstraint(Sketcher.Constraint("Distance", 1, Q("393.190109 mm")))
sketch13.addConstraint(Sketcher.Constraint("DistanceX", -1, 1, 1, 2, Q("1181.230769 mm")))
sketch13.addConstraint(Sketcher.Constraint("DistanceY", 1, 2, 2, 2, Q("69.461538 mm")))
sketch13.addConstraint(Sketcher.Constraint("Distance", 2, Q("113.140484 mm")))
pad13 = doc.addObject("PartDesign::Pad", "Pad012")
body13.addObject(pad13)
pad13.Profile = sketch13
pad13.Length = 55
pad13.Midplane = True
body14 = doc.addObject("PartDesign::Body", "Body013")

sketch14 = doc.addObject("Sketcher::SketchObject", "Sketch013")
body14.addObject(sketch14)
sketch14.AttachmentSupport = (doc.getObject("XZ_Plane013"), [""])
sketch14.MapMode = "FlatFace"
sketch14.addGeometry(Part.Circle(Vector(-52, -1785, 0), Vector(0, 0, 1), 172), False)
sketch14.addConstraint(Sketcher.Constraint("Diameter", 0, Q("344.971186 mm")))
sketch14.addConstraint(Sketcher.Constraint("DistanceY", 0, 3, -1, 1, Q("1784.54496 mm")))
sketch14.addConstraint(Sketcher.Constraint("DistanceX", 0, 3, -1, 1, Q("52.485593 mm")))
pad14 = doc.addObject("PartDesign::Pad", "Pad013")
body14.addObject(pad14)
pad14.Profile = sketch14
pad14.Length = 300
pad14.Midplane = True
body15 = doc.addObject("PartDesign::Body", "Body014")

sketch15 = doc.addObject("Sketcher::SketchObject", "Sketch014")
body15.addObject(sketch15)
sketch15.AttachmentSupport = (doc.getObject("XZ_Plane014"), [""])
sketch15.MapMode = "FlatFace"
sketch15.addGeometry(Part.Circle(Vector(-52, 1785, 0), Vector(0, 0, 1), 172), False)
sketch15.addConstraint(Sketcher.Constraint("Diameter", 0, Q("344.971186 mm")))
sketch15.addConstraint(Sketcher.Constraint("DistanceY", -1, 1, 0, 3, Q("1784.54496 mm")))
sketch15.addConstraint(Sketcher.Constraint("DistanceX", 0, 3, -1, 1, Q("52.485593 mm")))
pad15 = doc.addObject("PartDesign::Pad", "Pad014")
body15.addObject(pad15)
pad15.Profile = sketch15
pad15.Length = 300
pad15.Midplane = True
body16 = doc.addObject("PartDesign::Body", "Body015")

sketch16 = doc.addObject("Sketcher::SketchObject", "Sketch015")
body16.addObject(sketch16)
sketch16.AttachmentSupport = (doc.getObject("XZ_Plane015"), [""])
sketch16.MapMode = "FlatFace"
sketch16.addGeometry(Part.Circle(Vector(1160, 0, 0), Vector(0, 0, 1), 170), False)
sketch16.addConstraint(Sketcher.Constraint("PointOnObject", 0, 3, -1))
sketch16.addConstraint(Sketcher.Constraint("Diameter", 0, Q("340 mm")))
sketch16.addConstraint(Sketcher.Constraint("DistanceX", -1, 1, 0, 3, Q("1160 mm")))
pad16 = doc.addObject("PartDesign::Pad", "Pad015")
body16.addObject(pad16)
pad16.Profile = sketch16
pad16.Length = 240
pad16.Midplane = True
body17 = doc.addObject("PartDesign::Body", "Body016")

sketch17 = doc.addObject("Sketcher::SketchObject", "Sketch016")
body17.addObject(sketch17)
sketch17.AttachmentSupport = (doc.getObject("XZ_Plane016"), [""])
sketch17.MapMode = "FlatFace"
sketch17.addGeometry(Part.Circle(Vector(0, -1780, 0), Vector(0, 0, 1), 75), False)
sketch17.addConstraint(Sketcher.Constraint("PointOnObject", 0, 3, -2))
sketch17.addConstraint(Sketcher.Constraint("Diameter", 0, Q("150 mm")))
sketch17.addConstraint(Sketcher.Constraint("DistanceY", 0, 3, -1, 1, Q("1780 mm")))
pad17 = doc.addObject("PartDesign::Pad", "Pad016")
body17.addObject(pad17)
pad17.Profile = sketch17
pad17.Length = 340
pad17.Midplane = True
body18 = doc.addObject("PartDesign::Body", "Body017")

sketch18 = doc.addObject("Sketcher::SketchObject", "Sketch017")
body18.addObject(sketch18)
sketch18.AttachmentSupport = (doc.getObject("XZ_Plane017"), [""])
sketch18.MapMode = "FlatFace"
sketch18.addGeometry(Part.Circle(Vector(0, 1780, 0), Vector(0, 0, 1), 75), False)
sketch18.addConstraint(Sketcher.Constraint("PointOnObject", 0, 3, -2))
sketch18.addConstraint(Sketcher.Constraint("Diameter", 0, Q("150 mm")))
sketch18.addConstraint(Sketcher.Constraint("DistanceY", -1, 1, 0, 3, Q("1780 mm")))
pad18 = doc.addObject("PartDesign::Pad", "Pad017")
body18.addObject(pad18)
pad18.Profile = sketch18
pad18.Length = 340
pad18.Midplane = True
body19 = doc.addObject("PartDesign::Body", "Body018")

sketch19 = doc.addObject("Sketcher::SketchObject", "Sketch018")
body19.addObject(sketch19)
sketch19.AttachmentSupport = (doc.getObject("XZ_Plane018"), [""])
sketch19.MapMode = "FlatFace"
sketch19.addGeometry(Part.Circle(Vector(1260, 0, 0), Vector(0, 0, 1), 95), False)
sketch19.addConstraint(Sketcher.Constraint("PointOnObject", 0, 3, -1))
sketch19.addConstraint(Sketcher.Constraint("Diameter", 0, Q("190 mm")))
sketch19.addConstraint(Sketcher.Constraint("DistanceX", -1, 1, 0, 3, Q("1260 mm")))
pad19 = doc.addObject("PartDesign::Pad", "Pad018")
body19.addObject(pad19)
pad19.Profile = sketch19
pad19.Length = 280
pad19.Midplane = True
body20 = doc.addObject("PartDesign::Body", "Body019")

sketch20 = doc.addObject("Sketcher::SketchObject", "Sketch019")
body20.addObject(sketch20)
sketch20.AttachmentSupport = (doc.getObject("XZ_Plane019"), [""])
sketch20.MapMode = "FlatFace"
sketch20.addGeometry(Part.Circle(Vector(-225, -1785, 0), Vector(0, 0, 1), 130), False)
sketch20.addConstraint(Sketcher.Constraint("Diameter", 0, Q("259.942373 mm")))
sketch20.addConstraint(Sketcher.Constraint("DistanceY", 0, 3, -1, 1, Q("1784.54496 mm")))
sketch20.addConstraint(Sketcher.Constraint("DistanceX", 0, 3, -1, 1, Q("224.971186 mm")))
pad20 = doc.addObject("PartDesign::Pad", "Pad019")
body20.addObject(pad20)
pad20.Profile = sketch20
pad20.Length = 65
pad20.Midplane = True
body21 = doc.addObject("PartDesign::Body", "Body020")

sketch21 = doc.addObject("Sketcher::SketchObject", "Sketch020")
body21.addObject(sketch21)
sketch21.AttachmentSupport = (doc.getObject("XZ_Plane020"), [""])
sketch21.MapMode = "FlatFace"
sketch21.addGeometry(Part.Circle(Vector(1110, -190, 0), Vector(0, 0, 1), 85), False)
sketch21.addConstraint(Sketcher.Constraint("Diameter", 0, Q("170 mm")))
sketch21.addConstraint(Sketcher.Constraint("DistanceX", -1, 1, 0, 3, Q("1110 mm")))
sketch21.addConstraint(Sketcher.Constraint("DistanceY", 0, 3, -1, 1, Q("190 mm")))
pad21 = doc.addObject("PartDesign::Pad", "Pad020")
body21.addObject(pad21)
pad21.Profile = sketch21
pad21.Length = 70
pad21.Midplane = True
body22 = doc.addObject("PartDesign::Body", "Body021")

sketch22 = doc.addObject("Sketcher::SketchObject", "Sketch021")
body22.addObject(sketch22)
sketch22.AttachmentSupport = (doc.getObject("XZ_Plane021"), [""])
sketch22.MapMode = "FlatFace"
sketch22.addGeometry(Part.Circle(Vector(-225, 1785, 0), Vector(0, 0, 1), 130), False)
sketch22.addConstraint(Sketcher.Constraint("Diameter", 0, Q("259.942373 mm")))
sketch22.addConstraint(Sketcher.Constraint("DistanceY", -1, 1, 0, 3, Q("1784.54496 mm")))
sketch22.addConstraint(Sketcher.Constraint("DistanceX", 0, 3, -1, 1, Q("224.971186 mm")))
pad22 = doc.addObject("PartDesign::Pad", "Pad021")
body22.addObject(pad22)
pad22.Profile = sketch22
pad22.Length = 65
pad22.Midplane = True
body23 = doc.addObject("PartDesign::Body", "Body022")

sketch23 = doc.addObject("Sketcher::SketchObject", "Sketch022")
body23.addObject(sketch23)
sketch23.AttachmentSupport = (doc.getObject("XZ_Plane022"), [""])
sketch23.MapMode = "FlatFace"
sketch23.addGeometry(Part.Circle(Vector(1110, 190, 0), Vector(0, 0, 1), 85), False)
sketch23.addConstraint(Sketcher.Constraint("Diameter", 0, Q("170 mm")))
sketch23.addConstraint(Sketcher.Constraint("DistanceX", -1, 1, 0, 3, Q("1110 mm")))
sketch23.addConstraint(Sketcher.Constraint("DistanceY", -1, 1, 0, 3, Q("190 mm")))
pad23 = doc.addObject("PartDesign::Pad", "Pad022")
body23.addObject(pad23)
pad23.Profile = sketch23
pad23.Length = 70
pad23.Midplane = True
body24 = doc.addObject("PartDesign::Body", "Body023")

sketch24 = doc.addObject("Sketcher::SketchObject", "Sketch023")
body24.addObject(sketch24)
sketch24.AttachmentSupport = (doc.getObject("XZ_Plane023"), [""])
sketch24.MapMode = "FlatFace"
sketch24.addGeometry(Part.Circle(Vector(-1080, 0, 0), Vector(0, 0, 1), 125), False)
sketch24.addConstraint(Sketcher.Constraint("PointOnObject", 0, 3, -1))
sketch24.addConstraint(Sketcher.Constraint("Diameter", 0, Q("250 mm")))
sketch24.addConstraint(Sketcher.Constraint("DistanceX", 0, 3, -1, 1, Q("1080 mm")))
pad24 = doc.addObject("PartDesign::Pad", "Pad023")
body24.addObject(pad24)
pad24.Profile = sketch24
pad24.Length = 90
pad24.Midplane = True
body25 = doc.addObject("PartDesign::Body", "Body024")

sketch25 = doc.addObject("Sketcher::SketchObject", "Sketch024")
body25.addObject(sketch25)
sketch25.AttachmentSupport = (doc.getObject("XY_Plane024"), [""])
sketch25.MapMode = "FlatFace"
sketch25.addGeometry(Part.Circle(Vector(-1135, -45, 0), Vector(0, 0, 1), 75), False)
sketch25.addConstraint(Sketcher.Constraint("Diameter", 0, Q("150 mm")))
sketch25.addConstraint(Sketcher.Constraint("DistanceX", 0, 3, -1, 1, Q("1135 mm")))
sketch25.addConstraint(Sketcher.Constraint("DistanceY", 0, 3, -1, 1, Q("45 mm")))
pad25 = doc.addObject("PartDesign::Pad", "Pad024")
body25.addObject(pad25)
pad25.Profile = sketch25
pad25.Length = 110
pad25.Midplane = True

doc.recompute()
